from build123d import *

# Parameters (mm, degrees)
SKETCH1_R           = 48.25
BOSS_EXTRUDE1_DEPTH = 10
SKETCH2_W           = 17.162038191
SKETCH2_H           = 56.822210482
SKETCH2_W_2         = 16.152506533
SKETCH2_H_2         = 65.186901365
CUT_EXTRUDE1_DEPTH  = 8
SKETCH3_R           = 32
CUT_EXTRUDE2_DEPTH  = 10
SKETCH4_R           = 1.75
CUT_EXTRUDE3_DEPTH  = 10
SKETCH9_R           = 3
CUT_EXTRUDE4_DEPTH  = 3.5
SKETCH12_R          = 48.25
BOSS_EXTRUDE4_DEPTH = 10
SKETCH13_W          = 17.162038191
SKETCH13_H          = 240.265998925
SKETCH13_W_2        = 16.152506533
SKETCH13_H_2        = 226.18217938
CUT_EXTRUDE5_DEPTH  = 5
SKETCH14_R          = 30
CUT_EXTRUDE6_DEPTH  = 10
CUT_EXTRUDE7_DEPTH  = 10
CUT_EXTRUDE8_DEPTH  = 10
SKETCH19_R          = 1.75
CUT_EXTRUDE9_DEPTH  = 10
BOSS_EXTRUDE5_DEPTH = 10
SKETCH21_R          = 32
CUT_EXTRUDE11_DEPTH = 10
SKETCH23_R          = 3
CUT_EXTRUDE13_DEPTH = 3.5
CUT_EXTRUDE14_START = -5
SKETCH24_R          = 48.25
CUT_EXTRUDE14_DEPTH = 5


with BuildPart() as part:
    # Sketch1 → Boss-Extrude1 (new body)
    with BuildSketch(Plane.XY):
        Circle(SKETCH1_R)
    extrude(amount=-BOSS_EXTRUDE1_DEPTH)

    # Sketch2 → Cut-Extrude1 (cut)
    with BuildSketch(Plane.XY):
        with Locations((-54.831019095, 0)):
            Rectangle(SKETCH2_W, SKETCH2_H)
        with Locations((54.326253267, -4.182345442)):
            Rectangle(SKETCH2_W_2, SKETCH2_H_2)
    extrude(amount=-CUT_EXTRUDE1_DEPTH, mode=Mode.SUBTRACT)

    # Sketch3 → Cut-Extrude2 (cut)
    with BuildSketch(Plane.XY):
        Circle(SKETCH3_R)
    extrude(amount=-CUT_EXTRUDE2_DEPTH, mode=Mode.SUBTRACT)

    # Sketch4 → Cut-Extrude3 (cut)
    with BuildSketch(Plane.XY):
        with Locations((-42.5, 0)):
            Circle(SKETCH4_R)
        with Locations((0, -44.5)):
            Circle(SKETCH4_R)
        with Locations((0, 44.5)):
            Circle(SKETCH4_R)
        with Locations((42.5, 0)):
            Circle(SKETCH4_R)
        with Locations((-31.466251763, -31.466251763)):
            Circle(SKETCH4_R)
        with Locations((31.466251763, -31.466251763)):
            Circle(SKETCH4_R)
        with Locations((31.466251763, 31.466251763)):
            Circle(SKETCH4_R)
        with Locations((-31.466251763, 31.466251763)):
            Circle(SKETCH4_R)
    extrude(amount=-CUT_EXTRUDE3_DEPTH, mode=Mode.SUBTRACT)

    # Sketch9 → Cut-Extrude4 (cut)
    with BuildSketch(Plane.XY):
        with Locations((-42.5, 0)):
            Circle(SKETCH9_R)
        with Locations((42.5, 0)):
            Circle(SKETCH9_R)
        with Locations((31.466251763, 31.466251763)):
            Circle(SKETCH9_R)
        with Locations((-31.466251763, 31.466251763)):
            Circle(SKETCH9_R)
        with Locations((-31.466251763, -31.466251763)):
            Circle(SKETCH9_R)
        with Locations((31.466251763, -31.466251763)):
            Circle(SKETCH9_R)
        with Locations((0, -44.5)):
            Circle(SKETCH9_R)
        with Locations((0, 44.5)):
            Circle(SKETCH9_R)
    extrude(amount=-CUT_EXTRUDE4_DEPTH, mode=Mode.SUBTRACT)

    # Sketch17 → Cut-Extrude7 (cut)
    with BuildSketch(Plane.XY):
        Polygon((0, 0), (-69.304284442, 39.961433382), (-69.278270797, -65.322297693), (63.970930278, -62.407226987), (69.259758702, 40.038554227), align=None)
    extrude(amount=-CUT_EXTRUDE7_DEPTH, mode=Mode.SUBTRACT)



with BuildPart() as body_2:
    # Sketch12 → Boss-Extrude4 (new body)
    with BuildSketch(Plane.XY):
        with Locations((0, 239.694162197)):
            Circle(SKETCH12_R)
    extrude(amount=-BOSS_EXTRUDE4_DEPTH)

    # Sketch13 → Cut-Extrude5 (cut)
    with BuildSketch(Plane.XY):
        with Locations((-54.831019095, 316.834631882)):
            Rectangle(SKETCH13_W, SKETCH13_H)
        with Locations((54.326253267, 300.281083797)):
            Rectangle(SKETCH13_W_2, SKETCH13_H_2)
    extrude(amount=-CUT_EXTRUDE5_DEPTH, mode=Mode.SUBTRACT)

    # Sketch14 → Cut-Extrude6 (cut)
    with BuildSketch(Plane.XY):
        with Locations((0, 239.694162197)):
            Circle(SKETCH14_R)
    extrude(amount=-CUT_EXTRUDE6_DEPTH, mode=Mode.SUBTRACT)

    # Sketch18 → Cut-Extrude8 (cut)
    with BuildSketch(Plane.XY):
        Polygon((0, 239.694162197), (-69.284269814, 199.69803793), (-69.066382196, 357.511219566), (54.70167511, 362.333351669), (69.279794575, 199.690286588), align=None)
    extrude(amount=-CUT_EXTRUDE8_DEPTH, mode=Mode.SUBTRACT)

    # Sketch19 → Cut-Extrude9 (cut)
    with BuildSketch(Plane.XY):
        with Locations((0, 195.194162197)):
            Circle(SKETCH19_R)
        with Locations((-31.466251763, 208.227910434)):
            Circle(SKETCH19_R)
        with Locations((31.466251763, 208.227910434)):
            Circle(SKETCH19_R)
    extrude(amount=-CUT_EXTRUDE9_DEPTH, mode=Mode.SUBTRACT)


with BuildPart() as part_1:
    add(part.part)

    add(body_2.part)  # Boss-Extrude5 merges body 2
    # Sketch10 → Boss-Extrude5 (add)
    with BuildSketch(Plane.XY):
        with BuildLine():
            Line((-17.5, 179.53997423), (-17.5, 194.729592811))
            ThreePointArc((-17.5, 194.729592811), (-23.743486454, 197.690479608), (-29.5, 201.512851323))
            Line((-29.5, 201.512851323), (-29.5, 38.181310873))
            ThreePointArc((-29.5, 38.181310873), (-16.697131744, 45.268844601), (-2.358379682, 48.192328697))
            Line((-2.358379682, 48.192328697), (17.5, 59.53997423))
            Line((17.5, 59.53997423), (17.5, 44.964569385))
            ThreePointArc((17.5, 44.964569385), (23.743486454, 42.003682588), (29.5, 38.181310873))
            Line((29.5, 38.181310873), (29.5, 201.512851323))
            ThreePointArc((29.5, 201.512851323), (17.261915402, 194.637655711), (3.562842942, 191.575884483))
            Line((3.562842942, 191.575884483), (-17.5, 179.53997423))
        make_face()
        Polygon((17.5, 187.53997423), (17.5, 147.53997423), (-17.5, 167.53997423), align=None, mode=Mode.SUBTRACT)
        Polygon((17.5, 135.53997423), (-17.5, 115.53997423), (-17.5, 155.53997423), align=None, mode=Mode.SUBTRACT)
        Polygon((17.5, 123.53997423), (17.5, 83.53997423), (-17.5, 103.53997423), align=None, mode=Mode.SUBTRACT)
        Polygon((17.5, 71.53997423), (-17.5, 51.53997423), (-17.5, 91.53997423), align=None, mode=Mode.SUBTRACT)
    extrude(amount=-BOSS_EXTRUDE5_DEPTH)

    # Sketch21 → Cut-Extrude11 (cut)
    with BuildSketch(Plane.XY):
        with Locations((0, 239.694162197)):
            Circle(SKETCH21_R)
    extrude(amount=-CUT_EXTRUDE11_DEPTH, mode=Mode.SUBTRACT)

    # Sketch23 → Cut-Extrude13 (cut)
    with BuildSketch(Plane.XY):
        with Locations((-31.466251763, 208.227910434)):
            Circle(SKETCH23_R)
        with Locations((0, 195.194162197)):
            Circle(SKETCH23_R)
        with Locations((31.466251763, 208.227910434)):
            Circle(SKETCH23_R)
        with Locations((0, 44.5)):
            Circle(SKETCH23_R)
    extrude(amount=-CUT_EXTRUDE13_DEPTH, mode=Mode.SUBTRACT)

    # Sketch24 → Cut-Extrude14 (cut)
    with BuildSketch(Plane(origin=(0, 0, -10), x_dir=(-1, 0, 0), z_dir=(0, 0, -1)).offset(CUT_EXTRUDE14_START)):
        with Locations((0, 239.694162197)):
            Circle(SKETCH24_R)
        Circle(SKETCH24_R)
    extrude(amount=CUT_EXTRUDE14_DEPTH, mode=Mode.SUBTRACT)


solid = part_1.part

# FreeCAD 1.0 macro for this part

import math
import FreeCAD as App
import Part
import Sketcher

V = App.Vector


def add_polygon(sketch, points):
    """Adds a closed chain of lines whose ends are joined by coincident constraints."""
    first, n = sketch.GeometryCount, len(points)
    for a, b in zip(points, points[1:] + points[:1]):
        sketch.addGeometry(Part.LineSegment(App.Vector(*a, 0), App.Vector(*b, 0)), False)
    for i in range(n):
        sketch.addConstraint(Sketcher.Constraint("Coincident", first + i, 2, first + (i + 1) % n, 1))

doc = App.newDocument("Part")
params = doc.addObject("Spreadsheet::Sheet", "Params")
for row, (alias, value) in enumerate([
    ("sketch1_diameter", "96.5 mm"),
    ("pad1_length", "10 mm"),
    ("pocket1_length", "8 mm"),
    ("sketch3_diameter", "64 mm"),
    ("pocket2_length", "10 mm"),
    ("sketch4_diameter", "3.5 mm"),
    ("pocket3_length", "10 mm"),
    ("sketch5_diameter", "6 mm"),
    ("pocket4_length", "3.5 mm"),
    ("sketch6_length", "80 mm"),
    ("pocket5_length", "10 mm"),
    ("sketch7_diameter", "96.5 mm"),
    ("pad2_length", "10 mm"),
    ("pocket6_length", "5 mm"),
    ("sketch9_diameter", "60 mm"),
    ("pocket7_length", "10 mm"),
    ("sketch10_length", "80 mm"),
    ("pocket8_length", "10 mm"),
    ("sketch11_diameter", "3.5 mm"),
    ("pocket9_length", "10 mm"),
    ("sketch12_height", "40 mm"),
    ("sketch12_radius", "48.25 mm"),
    ("pad3_length", "10 mm"),
    ("sketch13_diameter", "64 mm"),
    ("pocket10_length", "10 mm"),
    ("sketch14_diameter", "6 mm"),
    ("pocket11_length", "3.5 mm"),
    ("sketch15_diameter", "96.5 mm"),
    ("pocket12_length", "5 mm"),
], start=1):
    params.set(f"A{row}", alias)
    params.set(f"B{row}", "=" + value)
    params.setAlias(f"B{row}", alias)

body = doc.addObject("PartDesign::Body", "Body")

# Sketch on XY plane
sketch1 = doc.addObject("Sketcher::SketchObject", "Sketch")
body.addObject(sketch1)
sketch1.AttachmentSupport = (doc.XY_Plane, [""])
sketch1.MapMode = "FlatFace"
sketch1.addGeometry(Part.Circle(V(0, 0, 0), V(0, 0, 1), 48), False)
sketch1.addConstraint([
    Sketcher.Constraint("Coincident", 0, 3, -1, 1),
    Sketcher.Constraint("Diameter", 0, 96.5),
])
sketch1.setExpression("Constraints[1]", "Params.sketch1_diameter")
pad1 = doc.addObject("PartDesign::Pad", "Pad")
body.addObject(pad1)
pad1.Profile = sketch1
pad1.setExpression("Length", "Params.pad1_length")
pad1.Reversed = True

# Sketch on XY plane
sketch2 = doc.addObject("Sketcher::SketchObject", "Sketch001")
body.addObject(sketch2)
sketch2.AttachmentSupport = (doc.XY_Plane, [""])
sketch2.MapMode = "FlatFace"
add_polygon(sketch2, [(-63, 28), (-63, -28), (-46, -28), (-46, 28)])  # lines 0-3
add_polygon(sketch2, [(46, 28), (46, -37), (62, -37), (62, 28)])  # lines 4-7
sketch2.addConstraint([
    Sketcher.Constraint("Vertical", 0),
    Sketcher.Constraint("Horizontal", 1),
    Sketcher.Constraint("Vertical", 2),
    Sketcher.Constraint("Horizontal", 3),
    Sketcher.Constraint("Vertical", 4),
    Sketcher.Constraint("Horizontal", 5),
    Sketcher.Constraint("Vertical", 6),
    Sketcher.Constraint("Horizontal", 7),
    Sketcher.Constraint("Symmetric", 1, 2, 7, 2, -1, 1),
    Sketcher.Constraint("Horizontal", 3, 2, 6, 2),
    Sketcher.Constraint("DistanceX", 1, 2, 4, 2, 92.5),
    Sketcher.Constraint("DistanceY", 4, 2, 4, 1, 65.186901),
    Sketcher.Constraint("DistanceX", 1, 1, 1, 2, 17.162038),
    Sketcher.Constraint("DistanceY", 0, 2, 0, 1, 56.82221),
    Sketcher.Constraint("DistanceX", 5, 1, 5, 2, 16.152507),
])
pocket1 = doc.addObject("PartDesign::Pocket", "Pocket")
body.addObject(pocket1)
pocket1.Profile = sketch2
pocket1.setExpression("Length", "Params.pocket1_length")

# Sketch on XY plane
sketch3 = doc.addObject("Sketcher::SketchObject", "Sketch002")
body.addObject(sketch3)
sketch3.AttachmentSupport = (doc.XY_Plane, [""])
sketch3.MapMode = "FlatFace"
sketch3.addGeometry(Part.Circle(V(0, 0, 0), V(0, 0, 1), 32), False)
sketch3.addConstraint([
    Sketcher.Constraint("Coincident", 0, 3, -1, 1),
    Sketcher.Constraint("Diameter", 0, 64.0),
])
sketch3.setExpression("Constraints[1]", "Params.sketch3_diameter")
pocket2 = doc.addObject("PartDesign::Pocket", "Pocket001")
body.addObject(pocket2)
pocket2.Profile = sketch3
pocket2.setExpression("Length", "Params.pocket2_length")

# Sketch on XY plane
sketch4 = doc.addObject("Sketcher::SketchObject", "Sketch003")
body.addObject(sketch4)
sketch4.AttachmentSupport = (doc.XY_Plane, [""])
sketch4.MapMode = "FlatFace"
sketch4.addGeometry([
    Part.Circle(V(-42.5, 0, 0), V(0, 0, 1), 1.8),  # 0
    Part.Circle(V(0, -44.5, 0), V(0, 0, 1), 1.8),  # 1
    Part.Circle(V(0, 44.5, 0), V(0, 0, 1), 1.8),  # 2
    Part.Circle(V(42.5, 0, 0), V(0, 0, 1), 1.8),  # 3
    Part.Circle(V(-31.5, -31.5, 0), V(0, 0, 1), 1.8),  # 4
    Part.Circle(V(31.5, -31.5, 0), V(0, 0, 1), 1.8),  # 5
    Part.Circle(V(31.5, 31.5, 0), V(0, 0, 1), 1.8),  # 6
    Part.Circle(V(-31.5, 31.5, 0), V(0, 0, 1), 1.8),  # 7
], False)
sketch4.addConstraint([
    Sketcher.Constraint("Equal", 0, 1),
    Sketcher.Constraint("Equal", 1, 2),
    Sketcher.Constraint("Equal", 2, 3),
    Sketcher.Constraint("Equal", 3, 4),
    Sketcher.Constraint("Equal", 4, 5),
    Sketcher.Constraint("Equal", 5, 6),
    Sketcher.Constraint("Equal", 6, 7),
    Sketcher.Constraint("Symmetric", 1, 3, 2, 3, -1, 1),
    Sketcher.Constraint("Symmetric", 0, 3, 3, 3, -1, 1),
    Sketcher.Constraint("Symmetric", 4, 3, 6, 3, -1, 1),
    Sketcher.Constraint("Symmetric", 5, 3, 7, 3, -1, 1),
    Sketcher.Constraint("Symmetric", 4, 3, 5, 3, -2),
    Sketcher.Constraint("PointOnObject", 0, 3, -1),
    Sketcher.Constraint("PointOnObject", 1, 3, -2),
    Sketcher.Constraint("Diameter", 0, 3.5),
    Sketcher.Constraint("DistanceY", 1, 3, 2, 3, 89.0),
    Sketcher.Constraint("DistanceX", 0, 3, 3, 3, 85.0),
    Sketcher.Constraint("DistanceX", 4, 3, -1, 1, 31.466252),
    Sketcher.Constraint("DistanceY", 4, 3, -1, 1, 31.466252),
])
sketch4.setExpression("Constraints[14]", "Params.sketch4_diameter")
pocket3 = doc.addObject("PartDesign::Pocket", "Pocket002")
body.addObject(pocket3)
pocket3.Profile = sketch4
pocket3.setExpression("Length", "Params.pocket3_length")

# Sketch on XY plane
sketch5 = doc.addObject("Sketcher::SketchObject", "Sketch004")
body.addObject(sketch5)
sketch5.AttachmentSupport = (doc.XY_Plane, [""])
sketch5.MapMode = "FlatFace"
sketch5.addGeometry([
    Part.Circle(V(-42.5, 0, 0), V(0, 0, 1), 3),  # 0
    Part.Circle(V(42.5, 0, 0), V(0, 0, 1), 3),  # 1
    Part.Circle(V(31.5, 31.5, 0), V(0, 0, 1), 3),  # 2
    Part.Circle(V(-31.5, 31.5, 0), V(0, 0, 1), 3),  # 3
    Part.Circle(V(-31.5, -31.5, 0), V(0, 0, 1), 3),  # 4
    Part.Circle(V(31.5, -31.5, 0), V(0, 0, 1), 3),  # 5
    Part.Circle(V(0, -44.5, 0), V(0, 0, 1), 3),  # 6
    Part.Circle(V(0, 44.5, 0), V(0, 0, 1), 3),  # 7
], False)
sketch5.addConstraint([
    Sketcher.Constraint("Equal", 0, 1),
    Sketcher.Constraint("Equal", 1, 2),
    Sketcher.Constraint("Equal", 2, 3),
    Sketcher.Constraint("Equal", 3, 4),
    Sketcher.Constraint("Equal", 4, 5),
    Sketcher.Constraint("Equal", 5, 6),
    Sketcher.Constraint("Equal", 6, 7),
    Sketcher.Constraint("Symmetric", 0, 3, 1, 3, -1, 1),
    Sketcher.Constraint("Symmetric", 2, 3, 4, 3, -1, 1),
    Sketcher.Constraint("Symmetric", 3, 3, 5, 3, -1, 1),
    Sketcher.Constraint("Symmetric", 6, 3, 7, 3, -1, 1),
    Sketcher.Constraint("Symmetric", 2, 3, 3, 3, -2),
    Sketcher.Constraint("PointOnObject", 0, 3, -1),
    Sketcher.Constraint("PointOnObject", 6, 3, -2),
    Sketcher.Constraint("Diameter", 0, 6.0),
    Sketcher.Constraint("DistanceX", 0, 3, 1, 3, 85.0),
    Sketcher.Constraint("DistanceY", 6, 3, -1, 1, 44.5),
    Sketcher.Constraint("DistanceX", -1, 1, 2, 3, 31.466252),
    Sketcher.Constraint("DistanceY", -1, 1, 2, 3, 31.466252),
])
sketch5.setExpression("Constraints[14]", "Params.sketch5_diameter")
pocket4 = doc.addObject("PartDesign::Pocket", "Pocket003")
body.addObject(pocket4)
pocket4.Profile = sketch5
pocket4.setExpression("Length", "Params.pocket4_length")

# Sketch on XY plane
sketch6 = doc.addObject("Sketcher::SketchObject", "Sketch005")
body.addObject(sketch6)
sketch6.AttachmentSupport = (doc.XY_Plane, [""])
sketch6.MapMode = "FlatFace"
add_polygon(sketch6, [(0, 0), (-69, 40), (-69, -65), (64, -62), (69, 40)])  # lines 0-4
sketch6.addConstraint([
    Sketcher.Constraint("Coincident", 4, 2, -1, 1),
    Sketcher.Constraint("Equal", 0, 4),
    Sketcher.Constraint("Distance", 0, 80.0),
    Sketcher.Constraint("DistanceX", 1, 2, 2, 2, 133.249201),
    Sketcher.Constraint("Distance", 3, 102.58221),
    Sketcher.Constraint("DistanceX", 1, 2, -1, 1, 69.278271),
    Sketcher.Constraint("DistanceX", -1, 1, 3, 2, 69.259759),
    Sketcher.Constraint("DistanceY", 1, 2, 0, 2, 105.283731),
    Sketcher.Constraint("DistanceY", 1, 2, 2, 2, 2.915071),
])
sketch6.setExpression("Constraints[7]", "Params.sketch6_length")
pocket5 = doc.addObject("PartDesign::Pocket", "Pocket004")
body.addObject(pocket5)
pocket5.Profile = sketch6
pocket5.setExpression("Length", "Params.pocket5_length")
body2 = doc.addObject("PartDesign::Body", "Body001")

# Sketch on XY plane
sketch7 = doc.addObject("Sketcher::SketchObject", "Sketch006")
body2.addObject(sketch7)
sketch7.AttachmentSupport = (doc.getObject("XY_Plane001"), [""])
sketch7.MapMode = "FlatFace"
sketch7.addGeometry(Part.Circle(V(0, 240, 0), V(0, 0, 1), 48), False)
sketch7.addConstraint([
    Sketcher.Constraint("PointOnObject", 0, 3, -2),
    Sketcher.Constraint("Diameter", 0, 96.5),
    Sketcher.Constraint("DistanceY", -1, 1, 0, 3, 239.694162),
])
sketch7.setExpression("Constraints[1]", "Params.sketch7_diameter")
pad2 = doc.addObject("PartDesign::Pad", "Pad001")
body2.addObject(pad2)
pad2.Profile = sketch7
pad2.setExpression("Length", "Params.pad2_length")
pad2.Reversed = True

# Sketch on XY plane
sketch8 = doc.addObject("Sketcher::SketchObject", "Sketch007")
body2.addObject(sketch8)
sketch8.AttachmentSupport = (doc.getObject("XY_Plane001"), [""])
sketch8.MapMode = "FlatFace"
add_polygon(sketch8, [(-63, 437), (-63, 197), (-46, 197), (-46, 437)])  # lines 0-3
add_polygon(sketch8, [(46, 413), (46, 187), (62, 187), (62, 413)])  # lines 4-7
sketch8.addConstraint([
    Sketcher.Constraint("Vertical", 0),
    Sketcher.Constraint("Horizontal", 1),
    Sketcher.Constraint("Vertical", 2),
    Sketcher.Constraint("Horizontal", 3),
    Sketcher.Constraint("Vertical", 4),
    Sketcher.Constraint("Horizontal", 5),
    Sketcher.Constraint("Vertical", 6),
    Sketcher.Constraint("Horizontal", 7),
    Sketcher.Constraint("DistanceX", 1, 2, 4, 2, 92.5),
    Sketcher.Constraint("DistanceY", 0, 2, 0, 1, 240.265999),
    Sketcher.Constraint("DistanceX", 1, 2, -1, 1, 46.25),
    Sketcher.Constraint("DistanceX", 1, 1, 1, 2, 17.162038),
    Sketcher.Constraint("DistanceY", 4, 2, 4, 1, 226.182179),
    Sketcher.Constraint("DistanceX", 5, 1, 5, 2, 16.152507),
    Sketcher.Constraint("DistanceY", -1, 1, 2, 2, 436.967631),
    Sketcher.Constraint("DistanceY", 4, 2, 1, 2, 9.511638),
])
pocket6 = doc.addObject("PartDesign::Pocket", "Pocket005")
body2.addObject(pocket6)
pocket6.Profile = sketch8
pocket6.setExpression("Length", "Params.pocket6_length")

# Sketch on XY plane
sketch9 = doc.addObject("Sketcher::SketchObject", "Sketch008")
body2.addObject(sketch9)
sketch9.AttachmentSupport = (doc.getObject("XY_Plane001"), [""])
sketch9.MapMode = "FlatFace"
sketch9.addGeometry(Part.Circle(V(0, 240, 0), V(0, 0, 1), 30), False)
sketch9.addConstraint([
    Sketcher.Constraint("PointOnObject", 0, 3, -2),
    Sketcher.Constraint("Diameter", 0, 60.0),
    Sketcher.Constraint("DistanceY", -1, 1, 0, 3, 239.694162),
])
sketch9.setExpression("Constraints[1]", "Params.sketch9_diameter")
pocket7 = doc.addObject("PartDesign::Pocket", "Pocket006")
body2.addObject(pocket7)
pocket7.Profile = sketch9
pocket7.setExpression("Length", "Params.pocket7_length")

# Sketch on XY plane
sketch10 = doc.addObject("Sketcher::SketchObject", "Sketch009")
body2.addObject(sketch10)
sketch10.AttachmentSupport = (doc.getObject("XY_Plane001"), [""])
sketch10.MapMode = "FlatFace"
add_polygon(sketch10, [(-69, 200), (0, 240), (69, 200), (55, 362), (-69, 358)])  # lines 0-4
sketch10.addConstraint([
    Sketcher.Constraint("PointOnObject", 0, 2, -2),
    Sketcher.Constraint("Equal", 0, 1),
    Sketcher.Constraint("Distance", 0, 80.0),
    Sketcher.Constraint("Distance", 3, 123.861959),
    Sketcher.Constraint("DistanceY", -1, 1, 2, 2, 362.333352),
    Sketcher.Constraint("DistanceY", -1, 1, 3, 2, 357.51122),
    Sketcher.Constraint("DistanceX", 4, 2, -1, 1, 69.28427),
    Sketcher.Constraint("DistanceY", 0, 2, 2, 2, 122.639189),
    Sketcher.Constraint("DistanceX", 2, 2, 1, 2, 14.578119),
    Sketcher.Constraint("DistanceY", 1, 2, 4, 2, 0.007751),
])
sketch10.setExpression("Constraints[7]", "Params.sketch10_length")
pocket8 = doc.addObject("PartDesign::Pocket", "Pocket007")
body2.addObject(pocket8)
pocket8.Profile = sketch10
pocket8.setExpression("Length", "Params.pocket8_length")

# Sketch on XY plane
sketch11 = doc.addObject("Sketcher::SketchObject", "Sketch010")
body2.addObject(sketch11)
sketch11.AttachmentSupport = (doc.getObject("XY_Plane001"), [""])
sketch11.MapMode = "FlatFace"
sketch11.addGeometry([
    Part.Circle(V(0, 195.2, 0), V(0, 0, 1), 1.8),
    Part.Circle(V(-31.5, 208.2, 0), V(0, 0, 1), 1.8),
    Part.Circle(V(31.5, 208.2, 0), V(0, 0, 1), 1.8),
], False)
sketch11.addConstraint([
    Sketcher.Constraint("Equal", 0, 1),
    Sketcher.Constraint("Equal", 1, 2),
    Sketcher.Constraint("Symmetric", 1, 3, 2, 3, -2),
    Sketcher.Constraint("PointOnObject", 0, 3, -2),
    Sketcher.Constraint("Diameter", 0, 3.5),
    Sketcher.Constraint("DistanceX", 1, 3, -1, 1, 31.466252),
    Sketcher.Constraint("DistanceY", -1, 1, 1, 3, 208.22791),
    Sketcher.Constraint("DistanceY", 0, 3, 1, 3, 13.033748),
])
sketch11.setExpression("Constraints[4]", "Params.sketch11_diameter")
pocket9 = doc.addObject("PartDesign::Pocket", "Pocket008")
body2.addObject(pocket9)
pocket9.Profile = sketch11
pocket9.setExpression("Length", "Params.pocket9_length")
body.AllowCompound = True
doc.recompute()

boolean = doc.addObject("PartDesign::Boolean", "Boolean")
body.addObject(boolean)
boolean.Type = "Fuse"
boolean.addObjects([body2])

# Sketch on XY plane
sketch12 = doc.addObject("Sketcher::SketchObject", "Sketch011")
body.addObject(sketch12)
sketch12.AttachmentSupport = (doc.XY_Plane, [""])
sketch12.MapMode = "FlatFace"
sketch12.addGeometry(Part.LineSegment(V(-18, 180, 0), V(-18, 195, 0)), False)  # 0
sketch12.addGeometry(Part.ArcOfCircle(Part.Circle(V(0, 240, 0), V(0, 0, 1), 48), math.radians(-127.69), math.radians(-111.27)), False)  # 1
sketch12.addGeometry(Part.LineSegment(V(-30, 202, 0), V(-30, 38, 0)), False)  # 2
sketch12.addGeometry(Part.ArcOfCircle(Part.Circle(V(0, 0, 0), V(0, 0, 1), 48), math.radians(93), math.radians(128)), False)  # 3
sketch12.addGeometry(Part.LineSegment(V(-2, 48, 0), V(18, 60, 0)), False)  # 4
sketch12.addGeometry(Part.LineSegment(V(18, 60, 0), V(18, 45, 0)), False)  # 5
sketch12.addGeometry(Part.ArcOfCircle(Part.Circle(V(0, 0, 0), V(0, 0, 1), 48), math.radians(52.31), math.radians(68.73)), False)  # 6
sketch12.addGeometry(Part.LineSegment(V(30, 38, 0), V(30, 202, 0)), False)  # 7
sketch12.addGeometry(Part.ArcOfCircle(Part.Circle(V(0, 240, 0), V(0, 0, 1), 48), math.radians(-86), math.radians(-52)), False)  # 8
sketch12.addGeometry(Part.LineSegment(V(4, 192, 0), V(-18, 180, 0)), False)  # 9
add_polygon(sketch12, [(-18, 92), (18, 72), (-18, 52)])  # lines 10-12
add_polygon(sketch12, [(-18, 104), (18, 124), (18, 84)])  # lines 13-15
add_polygon(sketch12, [(-18, 156), (18, 136), (-18, 116)])  # lines 16-18
add_polygon(sketch12, [(-18, 168), (18, 188), (18, 148)])  # lines 19-21
sketch12.addConstraint([
    Sketcher.Constraint("Coincident", 0, 2, 1, 2),
    Sketcher.Constraint("Coincident", 1, 1, 2, 1),
    Sketcher.Constraint("Coincident", 2, 2, 3, 2),
    Sketcher.Constraint("Coincident", 3, 1, 4, 1),
    Sketcher.Constraint("Coincident", 4, 2, 5, 1),
    Sketcher.Constraint("Coincident", 5, 2, 6, 2),
    Sketcher.Constraint("Coincident", 6, 1, 7, 1),
    Sketcher.Constraint("Coincident", 7, 2, 8, 2),
    Sketcher.Constraint("Coincident", 8, 1, 9, 1),
    Sketcher.Constraint("Coincident", 9, 2, 0, 1),
    Sketcher.Constraint("Vertical", 0),
    Sketcher.Constraint("Vertical", 2),
    Sketcher.Constraint("Vertical", 5),
    Sketcher.Constraint("Vertical", 7),
    Sketcher.Constraint("Vertical", 12),
    Sketcher.Constraint("Vertical", 14),
    Sketcher.Constraint("Vertical", 18),
    Sketcher.Constraint("Vertical", 20),
    Sketcher.Constraint("Coincident", 3, 3, -1, 1),
    Sketcher.Constraint("Coincident", 6, 3, -1, 1),
    Sketcher.Constraint("Coincident", 8, 3, 1, 3),
    Sketcher.Constraint("Equal", 1, 3),
    Sketcher.Constraint("Equal", 3, 6),
    Sketcher.Constraint("Equal", 6, 8),
    Sketcher.Constraint("Symmetric", 1, 1, 7, 2, -2),
    Sketcher.Constraint("Parallel", 4, 9),
    Sketcher.Constraint("Parallel", 9, 11),
    Sketcher.Constraint("Parallel", 11, 13),
    Sketcher.Constraint("Parallel", 10, 15),
    Sketcher.Constraint("Parallel", 15, 16),
    Sketcher.Constraint("Parallel", 13, 17),
    Sketcher.Constraint("Parallel", 17, 19),
    Sketcher.Constraint("Parallel", 16, 21),
    Sketcher.Constraint("Vertical", 5, 2, 10, 2),
    Sketcher.Constraint("Vertical", 9, 2, 11, 2),
    Sketcher.Constraint("Vertical", 10, 2, 13, 2),
    Sketcher.Constraint("Vertical", 12, 2, 15, 2),
    Sketcher.Constraint("Vertical", 14, 2, 16, 2),
    Sketcher.Constraint("Vertical", 15, 2, 17, 2),
    Sketcher.Constraint("Vertical", 16, 2, 19, 2),
    Sketcher.Constraint("Vertical", 18, 2, 21, 2),
    Sketcher.Constraint("Equal", 10, 11),
    Sketcher.Constraint("DistanceY", 12, 1, 12, 2, 40.0),
    Sketcher.Constraint("Radius", 1, 48.25),
    Sketcher.Constraint("DistanceX", 1, 1, 0, 2, 12.0),
    Sketcher.Constraint("DistanceX", 2, 2, 4, 2, 47.0),
    Sketcher.Constraint("DistanceX", 5, 2, 6, 1, 12.0),
    Sketcher.Constraint("DistanceY", 4, 2, 10, 2, 12.0),
    Sketcher.Constraint("DistanceY", 12, 2, 13, 2, 32.0),
    Sketcher.Constraint("DistanceY", 13, 2, 9, 2, 56.0),
    Sketcher.Constraint("DistanceY", 13, 2, 16, 2, 12.0),
    Sketcher.Constraint("DistanceY", 9, 2, 19, 2, 8.0),
    Sketcher.Constraint("DistanceY", 0, 1, 0, 2, 15.189619),
    Sketcher.Constraint("DistanceY", 2, 2, 2, 1, 163.33154),
])
sketch12.setExpression("Constraints[54]", "Params.sketch12_height")
sketch12.setExpression("Constraints[55]", "Params.sketch12_radius")
pad3 = doc.addObject("PartDesign::Pad", "Pad002")
body.addObject(pad3)
pad3.Profile = sketch12
pad3.setExpression("Length", "Params.pad3_length")
pad3.Reversed = True

# Sketch on XY plane
sketch13 = doc.addObject("Sketcher::SketchObject", "Sketch012")
body.addObject(sketch13)
sketch13.AttachmentSupport = (doc.XY_Plane, [""])
sketch13.MapMode = "FlatFace"
sketch13.addGeometry(Part.Circle(V(0, 240, 0), V(0, 0, 1), 32), False)
sketch13.addConstraint([
    Sketcher.Constraint("PointOnObject", 0, 3, -2),
    Sketcher.Constraint("Diameter", 0, 64.0),
    Sketcher.Constraint("DistanceY", -1, 1, 0, 3, 239.694162),
])
sketch13.setExpression("Constraints[1]", "Params.sketch13_diameter")
pocket10 = doc.addObject("PartDesign::Pocket", "Pocket009")
body.addObject(pocket10)
pocket10.Profile = sketch13
pocket10.setExpression("Length", "Params.pocket10_length")

# Sketch on XY plane
sketch14 = doc.addObject("Sketcher::SketchObject", "Sketch013")
body.addObject(sketch14)
sketch14.AttachmentSupport = (doc.XY_Plane, [""])
sketch14.MapMode = "FlatFace"
sketch14.addGeometry([
    Part.Circle(V(-31.5, 208.2, 0), V(0, 0, 1), 3),
    Part.Circle(V(0, 195.2, 0), V(0, 0, 1), 3),
    Part.Circle(V(31.5, 208.2, 0), V(0, 0, 1), 3),
    Part.Circle(V(0, 44.5, 0), V(0, 0, 1), 3),
], False)
sketch14.addConstraint([
    Sketcher.Constraint("Equal", 0, 1),
    Sketcher.Constraint("Equal", 1, 2),
    Sketcher.Constraint("Equal", 2, 3),
    Sketcher.Constraint("Symmetric", 0, 3, 2, 3, -2),
    Sketcher.Constraint("PointOnObject", 1, 3, -2),
    Sketcher.Constraint("PointOnObject", 3, 3, -2),
    Sketcher.Constraint("Diameter", 0, 6.0),
    Sketcher.Constraint("DistanceY", -1, 1, 3, 3, 44.5),
    Sketcher.Constraint("DistanceX", 0, 3, -1, 1, 31.466252),
    Sketcher.Constraint("DistanceY", -1, 1, 0, 3, 208.22791),
    Sketcher.Constraint("DistanceY", 1, 3, 0, 3, 13.033748),
])
sketch14.setExpression("Constraints[6]", "Params.sketch14_diameter")
pocket11 = doc.addObject("PartDesign::Pocket", "Pocket010")
body.addObject(pocket11)
pocket11.Profile = sketch14
pocket11.setExpression("Length", "Params.pocket11_length")

# Sketch on XY plane
sketch15 = doc.addObject("Sketcher::SketchObject", "Sketch014")
body.addObject(sketch15)
sketch15.AttachmentSupport = (doc.XY_Plane, [""])
sketch15.MapMode = "FlatFace"
sketch15.AttachmentOffset = App.Placement(V(0, 0, -5), App.Rotation())
sketch15.addGeometry([
    Part.Circle(V(0, 240, 0), V(0, 0, 1), 48),
    Part.Circle(V(0, 0, 0), V(0, 0, 1), 48),
], False)
sketch15.addConstraint([
    Sketcher.Constraint("Coincident", 1, 3, -1, 1),
    Sketcher.Constraint("Equal", 0, 1),
    Sketcher.Constraint("PointOnObject", 0, 3, -2),
    Sketcher.Constraint("Diameter", 0, 96.5),
    Sketcher.Constraint("DistanceY", -1, 1, 0, 3, 239.694162),
])
sketch15.setExpression("Constraints[3]", "Params.sketch15_diameter")
pocket12 = doc.addObject("PartDesign::Pocket", "Pocket011")
body.addObject(pocket12)
pocket12.Profile = sketch15
pocket12.setExpression("Length", "Params.pocket12_length")

doc.recompute()
